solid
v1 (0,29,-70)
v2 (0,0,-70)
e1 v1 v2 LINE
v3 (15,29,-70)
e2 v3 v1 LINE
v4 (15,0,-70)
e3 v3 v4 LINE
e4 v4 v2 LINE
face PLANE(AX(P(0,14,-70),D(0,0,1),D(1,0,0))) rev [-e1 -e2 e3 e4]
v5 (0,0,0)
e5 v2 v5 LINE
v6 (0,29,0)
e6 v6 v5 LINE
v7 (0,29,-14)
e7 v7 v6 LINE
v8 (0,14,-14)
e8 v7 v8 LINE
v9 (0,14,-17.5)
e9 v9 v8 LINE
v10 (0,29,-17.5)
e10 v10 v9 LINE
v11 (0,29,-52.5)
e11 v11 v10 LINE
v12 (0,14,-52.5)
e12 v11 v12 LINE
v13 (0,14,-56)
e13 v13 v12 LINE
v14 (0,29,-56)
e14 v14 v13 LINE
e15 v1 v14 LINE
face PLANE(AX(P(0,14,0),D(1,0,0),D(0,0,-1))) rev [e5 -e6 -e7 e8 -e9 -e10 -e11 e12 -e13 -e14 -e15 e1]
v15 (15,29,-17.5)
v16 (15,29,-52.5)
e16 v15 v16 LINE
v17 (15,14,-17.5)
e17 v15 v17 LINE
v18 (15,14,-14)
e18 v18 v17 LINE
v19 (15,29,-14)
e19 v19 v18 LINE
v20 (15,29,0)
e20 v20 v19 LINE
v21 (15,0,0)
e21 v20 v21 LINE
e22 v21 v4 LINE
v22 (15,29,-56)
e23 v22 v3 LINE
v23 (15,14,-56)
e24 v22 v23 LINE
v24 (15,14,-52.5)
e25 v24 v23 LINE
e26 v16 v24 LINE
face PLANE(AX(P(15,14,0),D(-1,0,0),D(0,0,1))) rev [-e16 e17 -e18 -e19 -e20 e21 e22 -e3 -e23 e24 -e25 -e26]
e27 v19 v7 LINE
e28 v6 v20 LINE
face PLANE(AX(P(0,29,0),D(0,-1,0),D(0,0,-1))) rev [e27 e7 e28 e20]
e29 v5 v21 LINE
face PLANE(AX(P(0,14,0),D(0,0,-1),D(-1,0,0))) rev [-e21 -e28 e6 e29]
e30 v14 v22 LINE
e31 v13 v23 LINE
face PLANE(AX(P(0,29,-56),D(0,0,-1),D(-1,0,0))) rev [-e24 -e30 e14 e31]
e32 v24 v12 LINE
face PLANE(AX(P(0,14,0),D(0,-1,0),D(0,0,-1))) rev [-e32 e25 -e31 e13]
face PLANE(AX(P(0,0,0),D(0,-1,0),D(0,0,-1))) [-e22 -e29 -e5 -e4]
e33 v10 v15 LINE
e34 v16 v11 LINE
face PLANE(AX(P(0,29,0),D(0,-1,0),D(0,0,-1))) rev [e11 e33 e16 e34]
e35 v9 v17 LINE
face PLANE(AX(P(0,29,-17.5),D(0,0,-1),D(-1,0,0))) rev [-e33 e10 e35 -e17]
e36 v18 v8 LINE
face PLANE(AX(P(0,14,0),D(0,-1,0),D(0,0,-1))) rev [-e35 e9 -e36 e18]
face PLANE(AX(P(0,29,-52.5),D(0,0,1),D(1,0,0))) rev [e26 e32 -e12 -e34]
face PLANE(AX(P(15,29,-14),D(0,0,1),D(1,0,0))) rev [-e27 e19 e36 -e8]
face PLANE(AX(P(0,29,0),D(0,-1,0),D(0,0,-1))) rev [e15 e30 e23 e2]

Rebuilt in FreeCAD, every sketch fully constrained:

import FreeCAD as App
import Part
import Sketcher
Q = App.Units.Quantity

doc = App.newDocument("Part")
body = doc.addObject("PartDesign::Body", "Body")

# Sketch on XZ plane
sketch1 = body.newObject("Sketcher::SketchObject", "Sketch")
sketch1.AttachmentSupport = (doc.getObject("XZ_Plane"), [""])
sketch1.MapMode = "FlatFace"
sketch1.addGeometry([
    Part.LineSegment(App.Vector(0, -70, 0), App.Vector(0, 0, 0)),
    Part.LineSegment(App.Vector(0, 0, 0), App.Vector(15, 0, 0)),
    Part.LineSegment(App.Vector(15, 0, 0), App.Vector(15, -70, 0)),
    Part.LineSegment(App.Vector(15, -70, 0), App.Vector(0, -70, 0)),
], False)
sketch1.addConstraint([
    Sketcher.Constraint("Coincident", 0, 2, 1, 1),
    Sketcher.Constraint("Coincident", 1, 2, 2, 1),
    Sketcher.Constraint("Coincident", 2, 2, 3, 1),
    Sketcher.Constraint("Coincident", 3, 2, 0, 1),
    Sketcher.Constraint("Vertical", 0),
    Sketcher.Constraint("Horizontal", 1),
    Sketcher.Constraint("Vertical", 2),
    Sketcher.Constraint("Horizontal", 3),
    Sketcher.Constraint("Coincident", 0, 2, -1, 1),
    Sketcher.Constraint("DistanceX", 1, 1, 1, 2, Q("15 mm")),
    Sketcher.Constraint("DistanceY", 0, 1, 0, 2, Q("70 mm")),
])
pad1 = body.newObject("PartDesign::Pad", "Pad")
pad1.Profile = sketch1
pad1.Length = 14
pad1.Reversed = True

# Sketch on XZ plane
sketch2 = body.newObject("Sketcher::SketchObject", "Sketch001")
sketch2.AttachmentSupport = (doc.getObject("XZ_Plane"), [""])
sketch2.MapMode = "FlatFace"
sketch2.AttachmentOffset = App.Placement(App.Vector(0, 0, -14), App.Rotation())
sketch2.addGeometry([
    Part.LineSegment(App.Vector(0, -52, 0), App.Vector(0, -18, 0)),  # 0
    Part.LineSegment(App.Vector(0, -18, 0), App.Vector(15, -18, 0)),  # 1
    Part.LineSegment(App.Vector(15, -18, 0), App.Vector(15, -52, 0)),  # 2
    Part.LineSegment(App.Vector(15, -52, 0), App.Vector(0, -52, 0)),  # 3
    Part.LineSegment(App.Vector(0, -14, 0), App.Vector(0, 0, 0)),  # 4
    Part.LineSegment(App.Vector(0, 0, 0), App.Vector(15, 0, 0)),  # 5
    Part.LineSegment(App.Vector(15, 0, 0), App.Vector(15, -14, 0)),  # 6
    Part.LineSegment(App.Vector(15, -14, 0), App.Vector(0, -14, 0)),  # 7
    Part.LineSegment(App.Vector(0, -70, 0), App.Vector(0, -56, 0)),  # 8
    Part.LineSegment(App.Vector(0, -56, 0), App.Vector(15, -56, 0)),  # 9
    Part.LineSegment(App.Vector(15, -56, 0), App.Vector(15, -70, 0)),  # 10
    Part.LineSegment(App.Vector(15, -70, 0), App.Vector(0, -70, 0)),  # 11
], False)
sketch2.addConstraint([
    Sketcher.Constraint("Coincident", 0, 2, 1, 1),
    Sketcher.Constraint("Coincident", 1, 2, 2, 1),
    Sketcher.Constraint("Coincident", 2, 2, 3, 1),
    Sketcher.Constraint("Coincident", 3, 2, 0, 1),
    Sketcher.Constraint("Coincident", 4, 2, 5, 1),
    Sketcher.Constraint("Coincident", 5, 2, 6, 1),
    Sketcher.Constraint("Coincident", 6, 2, 7, 1),
    Sketcher.Constraint("Coincident", 7, 2, 4, 1),
    Sketcher.Constraint("Coincident", 8, 2, 9, 1),
    Sketcher.Constraint("Coincident", 9, 2, 10, 1),
    Sketcher.Constraint("Coincident", 10, 2, 11, 1),
    Sketcher.Constraint("Coincident", 11, 2, 8, 1),
    Sketcher.Constraint("Vertical", 0),
    Sketcher.Constraint("Horizontal", 1),
    Sketcher.Constraint("Vertical", 2),
    Sketcher.Constraint("Horizontal", 3),
    Sketcher.Constraint("Vertical", 4),
    Sketcher.Constraint("Horizontal", 5),
    Sketcher.Constraint("Vertical", 6),
    Sketcher.Constraint("Horizontal", 7),
    Sketcher.Constraint("Vertical", 8),
    Sketcher.Constraint("Horizontal", 9),
    Sketcher.Constraint("Vertical", 10),
    Sketcher.Constraint("Horizontal", 11),
    Sketcher.Constraint("Coincident", 4, 2, -1, 1),
    Sketcher.Constraint("PointOnObject", 0, 2, -2),
    Sketcher.Constraint("PointOnObject", 8, 2, -2),
    Sketcher.Constraint("Vertical", 2, 2, 5, 2),
    Sketcher.Constraint("Vertical", 6, 2, 9, 2),
    Sketcher.Constraint("Equal", 6, 8),
    Sketcher.Constraint("DistanceX", 1, 1, 1, 2, Q("15 mm")),
    Sketcher.Constraint("DistanceY", 0, 1, 0, 2, Q("35 mm")),
    Sketcher.Constraint("DistanceY", 4, 1, 4, 2, Q("14 mm")),
    Sketcher.Constraint("DistanceY", 8, 2, -1, 1, Q("56 mm")),
    Sketcher.Constraint("DistanceY", 0, 2, -1, 1, Q("17.5 mm")),
])
pad2 = body.newObject("PartDesign::Pad", "Pad001")
pad2.Profile = sketch2
pad2.Length = 15
pad2.Reversed = True

doc.recompute()
